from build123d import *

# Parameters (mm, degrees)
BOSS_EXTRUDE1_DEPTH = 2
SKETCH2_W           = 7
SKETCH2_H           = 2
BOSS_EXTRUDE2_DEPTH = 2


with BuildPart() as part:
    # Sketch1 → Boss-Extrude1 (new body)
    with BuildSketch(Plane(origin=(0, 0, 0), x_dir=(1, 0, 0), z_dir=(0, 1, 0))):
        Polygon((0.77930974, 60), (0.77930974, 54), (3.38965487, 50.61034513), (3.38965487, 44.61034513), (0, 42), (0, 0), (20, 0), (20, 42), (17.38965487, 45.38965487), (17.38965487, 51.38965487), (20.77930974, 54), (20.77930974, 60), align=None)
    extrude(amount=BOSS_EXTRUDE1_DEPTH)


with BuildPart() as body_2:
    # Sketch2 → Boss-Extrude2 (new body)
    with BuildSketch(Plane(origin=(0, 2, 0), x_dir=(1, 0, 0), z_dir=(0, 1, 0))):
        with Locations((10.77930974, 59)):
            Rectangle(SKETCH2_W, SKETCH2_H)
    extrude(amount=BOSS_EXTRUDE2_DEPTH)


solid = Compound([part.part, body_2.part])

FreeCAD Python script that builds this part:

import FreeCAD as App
import Part
import Sketcher
Q = App.Units.Quantity

doc = App.newDocument("Part")
body = doc.addObject("PartDesign::Body", "Body")

sketch1 = body.newObject("Sketcher::SketchObject", "Sketch")
sketch1.AttachmentSupport = (doc.getObject("XZ_Plane"), [""])
sketch1.MapMode = "FlatFace"
sketch1.addGeometry([
    Part.LineSegment(App.Vector(0.8, -60, 0), App.Vector(0.8, -54, 0)),
    Part.LineSegment(App.Vector(0.8, -54, 0), App.Vector(3.4, -50.6, 0)),
    Part.LineSegment(App.Vector(3.4, -50.6, 0), App.Vector(3.4, -44.6, 0)),
    Part.LineSegment(App.Vector(3.4, -44.6, 0), App.Vector(0, -42, 0)),
    Part.LineSegment(App.Vector(0, -42, 0), App.Vector(0, 0, 0)),
    Part.LineSegment(App.Vector(0, 0, 0), App.Vector(20, 0, 0)),
    Part.LineSegment(App.Vector(20, 0, 0), App.Vector(20, -42, 0)),
    Part.LineSegment(App.Vector(20, -42, 0), App.Vector(17.4, -45.4, 0)),
    Part.LineSegment(App.Vector(17.4, -45.4, 0), App.Vector(17.4, -51.4, 0)),
    Part.LineSegment(App.Vector(17.4, -51.4, 0), App.Vector(20.8, -54, 0)),
    Part.LineSegment(App.Vector(20.8, -54, 0), App.Vector(20.8, -60, 0)),
    Part.LineSegment(App.Vector(20.8, -60, 0), App.Vector(0.8, -60, 0)),
], False)
sketch1.addConstraint([
    Sketcher.Constraint("Coincident", 0, 2, 1, 1),
    Sketcher.Constraint("Coincident", 1, 2, 2, 1),
    Sketcher.Constraint("Coincident", 2, 2, 3, 1),
    Sketcher.Constraint("Coincident", 3, 2, 4, 1),
    Sketcher.Constraint("Coincident", 4, 2, 5, 1),
    Sketcher.Constraint("Coincident", 5, 2, 6, 1),
    Sketcher.Constraint("Coincident", 6, 2, 7, 1),
    Sketcher.Constraint("Coincident", 7, 2, 8, 1),
    Sketcher.Constraint("Coincident", 8, 2, 9, 1),
    Sketcher.Constraint("Coincident", 9, 2, 10, 1),
    Sketcher.Constraint("Coincident", 10, 2, 11, 1),
    Sketcher.Constraint("Coincident", 11, 2, 0, 1),
    Sketcher.Constraint("Vertical", 0),
    Sketcher.Constraint("Vertical", 2),
    Sketcher.Constraint("Vertical", 4),
    Sketcher.Constraint("Horizontal", 5),
    Sketcher.Constraint("Vertical", 6),
    Sketcher.Constraint("Vertical", 8),
    Sketcher.Constraint("Vertical", 10),
    Sketcher.Constraint("Horizontal", 11),
    Sketcher.Constraint("Coincident", 4, 2, -1, 1),
    Sketcher.Constraint("Perpendicular", 1, 3),
    Sketcher.Constraint("Perpendicular", 3, 7),
    Sketcher.Constraint("Perpendicular", 7, 9),
    Sketcher.Constraint("Horizontal", 3, 2, 6, 2),
    Sketcher.Constraint("Horizontal", 0, 2, 9, 2),
    Sketcher.Constraint("Equal", 5, 11),
    Sketcher.Constraint("Equal", 0, 2),
    Sketcher.Constraint("Equal", 2, 8),
    Sketcher.Constraint("Equal", 1, 3),
    Sketcher.Constraint("DistanceX", 5, 1, 5, 2, Q("20 mm")),
    Sketcher.Constraint("DistanceY", 0, 1, 0, 2, Q("6 mm")),
    Sketcher.Constraint("DistanceY", 4, 1, 4, 2, Q("42 mm")),
    Sketcher.Constraint("DistanceY", 0, 2, -1, 1, Q("54 mm")),
    Sketcher.Constraint("DistanceX", -1, 1, 0, 2, Q("0.77931 mm")),
])
pad1 = body.newObject("PartDesign::Pad", "Pad")
pad1.Profile = sketch1
pad1.Length = 2
pad1.Reversed = True
body2 = doc.addObject("PartDesign::Body", "Body001")

sketch2 = body2.newObject("Sketcher::SketchObject", "Sketch001")
sketch2.AttachmentSupport = (doc.getObject("XZ_Plane001"), [""])
sketch2.MapMode = "FlatFace"
sketch2.AttachmentOffset = App.Placement(App.Vector(0, 0, -2), App.Rotation())
sketch2.addGeometry([
    Part.LineSegment(App.Vector(7.3, -60, 0), App.Vector(7.3, -58, 0)),
    Part.LineSegment(App.Vector(7.3, -58, 0), App.Vector(14.3, -58, 0)),
    Part.LineSegment(App.Vector(14.3, -58, 0), App.Vector(14.3, -60, 0)),
    Part.LineSegment(App.Vector(14.3, -60, 0), App.Vector(7.3, -60, 0)),
], False)
sketch2.addConstraint([
    Sketcher.Constraint("Coincident", 0, 2, 1, 1),
    Sketcher.Constraint("Coincident", 1, 2, 2, 1),
    Sketcher.Constraint("Coincident", 2, 2, 3, 1),
    Sketcher.Constraint("Coincident", 3, 2, 0, 1),
    Sketcher.Constraint("Vertical", 0),
    Sketcher.Constraint("Horizontal", 1),
    Sketcher.Constraint("Vertical", 2),
    Sketcher.Constraint("Horizontal", 3),
    Sketcher.Constraint("DistanceX", 1, 1, 1, 2, Q("7 mm")),
    Sketcher.Constraint("DistanceY", 0, 1, 0, 2, Q("2 mm")),
    Sketcher.Constraint("DistanceY", 0, 2, -1, 1, Q("58 mm")),
    Sketcher.Constraint("DistanceX", -1, 1, 0, 2, Q("7.27931 mm")),
])
pad2 = body2.newObject("PartDesign::Pad", "Pad001")
pad2.Profile = sketch2
pad2.Length = 2
pad2.Reversed = True

doc.recompute()
